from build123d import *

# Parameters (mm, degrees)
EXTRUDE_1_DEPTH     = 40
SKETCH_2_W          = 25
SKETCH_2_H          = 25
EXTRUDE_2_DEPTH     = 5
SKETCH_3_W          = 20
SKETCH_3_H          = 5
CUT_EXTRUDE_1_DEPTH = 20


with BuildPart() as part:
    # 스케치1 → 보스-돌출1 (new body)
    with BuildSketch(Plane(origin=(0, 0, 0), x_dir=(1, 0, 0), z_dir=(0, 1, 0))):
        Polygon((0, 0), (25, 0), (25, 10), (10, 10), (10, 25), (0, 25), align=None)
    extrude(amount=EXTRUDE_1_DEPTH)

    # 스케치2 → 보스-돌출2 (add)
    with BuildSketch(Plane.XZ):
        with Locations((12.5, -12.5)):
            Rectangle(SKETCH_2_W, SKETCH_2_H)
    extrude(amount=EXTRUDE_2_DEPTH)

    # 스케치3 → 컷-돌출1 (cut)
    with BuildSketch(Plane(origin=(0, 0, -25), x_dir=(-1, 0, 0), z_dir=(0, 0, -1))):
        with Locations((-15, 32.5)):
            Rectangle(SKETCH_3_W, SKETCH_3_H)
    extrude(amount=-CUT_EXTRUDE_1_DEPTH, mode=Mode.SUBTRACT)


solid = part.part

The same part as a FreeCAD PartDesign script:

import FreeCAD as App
import Part
import Sketcher
from FreeCAD import Vector
Q = App.Units.Quantity

doc = App.newDocument("Part")
params = doc.addObject("Spreadsheet::Sheet", "Params")
for row, (alias, value) in enumerate([
    ("sketch1_width", "25 mm"),
    ("sketch1_width2", "15 mm"),
    ("pad1_length", "40 mm"),
    ("sketch2_width", "25 mm"),
    ("pad2_length", "5 mm"),
    ("sketch3_width", "20 mm"),
    ("sketch3_height", "5 mm"),
    ("pocket1_length", "20 mm"),
], start=1):
    params.set(f"A{row}", alias)
    params.set(f"B{row}", "=" + value)
    params.setAlias(f"B{row}", alias)

body = doc.addObject("PartDesign::Body", "Body")

# Sketch on XZ plane
sketch1 = body.newObject("Sketcher::SketchObject", "Sketch")
sketch1.AttachmentSupport = (doc.getObject("XZ_Plane"), [""])
sketch1.MapMode = "FlatFace"
sketch1.addGeometry(Part.LineSegment(Vector(0, 0, 0), Vector(25, 0, 0)), False)
sketch1.addGeometry(Part.LineSegment(Vector(25, 0, 0), Vector(25, -10, 0)), False)
sketch1.addGeometry(Part.LineSegment(Vector(25, -10, 0), Vector(10, -10, 0)), False)
sketch1.addGeometry(Part.LineSegment(Vector(10, -10, 0), Vector(10, -25, 0)), False)
sketch1.addGeometry(Part.LineSegment(Vector(10, -25, 0), Vector(0, -25, 0)), False)
sketch1.addGeometry(Part.LineSegment(Vector(0, -25, 0), Vector(0, 0, 0)), False)
sketch1.addConstraint(Sketcher.Constraint("Coincident", 0, 2, 1, 1))
sketch1.addConstraint(Sketcher.Constraint("Coincident", 1, 2, 2, 1))
sketch1.addConstraint(Sketcher.Constraint("Coincident", 2, 2, 3, 1))
sketch1.addConstraint(Sketcher.Constraint("Coincident", 3, 2, 4, 1))
sketch1.addConstraint(Sketcher.Constraint("Coincident", 4, 2, 5, 1))
sketch1.addConstraint(Sketcher.Constraint("Coincident", 5, 2, 0, 1))
sketch1.addConstraint(Sketcher.Constraint("Horizontal", 0))
sketch1.addConstraint(Sketcher.Constraint("Vertical", 1))
sketch1.addConstraint(Sketcher.Constraint("Horizontal", 2))
sketch1.addConstraint(Sketcher.Constraint("Vertical", 3))
sketch1.addConstraint(Sketcher.Constraint("Horizontal", 4))
sketch1.addConstraint(Sketcher.Constraint("Vertical", 5))
sketch1.addConstraint(Sketcher.Constraint("Coincident", 5, 2, -1, 1))
sketch1.addConstraint(Sketcher.Constraint("Equal", 4, 1))
sketch1.addConstraint(Sketcher.Constraint("Equal", 2, 3))
sketch1.addConstraint(Sketcher.Constraint("DistanceX", 0, 1, 0, 2, Q("25 mm")))
sketch1.addConstraint(Sketcher.Constraint("DistanceX", 2, 2, 2, 1, Q("15 mm")))
sketch1.setExpression("Constraints[15]", "Params.sketch1_width")
sketch1.setExpression("Constraints[16]", "Params.sketch1_width2")
pad1 = body.newObject("PartDesign::Pad", "Pad")
pad1.Profile = sketch1
pad1.setExpression("Length", "Params.pad1_length")
pad1.Reversed = True

# Sketch on XZ plane
sketch2 = body.newObject("Sketcher::SketchObject", "Sketch001")
sketch2.AttachmentSupport = (doc.getObject("XZ_Plane"), [""])
sketch2.MapMode = "FlatFace"
sketch2.addGeometry(Part.LineSegment(Vector(0, 0, 0), Vector(0, -25, 0)), False)
sketch2.addGeometry(Part.LineSegment(Vector(0, -25, 0), Vector(25, -25, 0)), False)
sketch2.addGeometry(Part.LineSegment(Vector(25, -25, 0), Vector(25, 0, 0)), False)
sketch2.addGeometry(Part.LineSegment(Vector(25, 0, 0), Vector(0, 0, 0)), False)
sketch2.addConstraint(Sketcher.Constraint("Coincident", 0, 2, 1, 1))
sketch2.addConstraint(Sketcher.Constraint("Coincident", 1, 2, 2, 1))
sketch2.addConstraint(Sketcher.Constraint("Coincident", 2, 2, 3, 1))
sketch2.addConstraint(Sketcher.Constraint("Coincident", 3, 2, 0, 1))
sketch2.addConstraint(Sketcher.Constraint("Vertical", 0))
sketch2.addConstraint(Sketcher.Constraint("Horizontal", 1))
sketch2.addConstraint(Sketcher.Constraint("Vertical", 2))
sketch2.addConstraint(Sketcher.Constraint("Horizontal", 3))
sketch2.addConstraint(Sketcher.Constraint("Coincident", 3, 2, -1, 1))
sketch2.addConstraint(Sketcher.Constraint("Equal", 3, 0))
sketch2.addConstraint(Sketcher.Constraint("DistanceX", 1, 1, 1, 2, Q("25 mm")))
sketch2.setExpression("Constraints[10]", "Params.sketch2_width")
pad2 = body.newObject("PartDesign::Pad", "Pad001")
pad2.Profile = sketch2
pad2.setExpression("Length", "Params.pad2_length")

# Sketch on XY plane
sketch3 = body.newObject("Sketcher::SketchObject", "Sketch002")
sketch3.AttachmentSupport = (doc.getObject("XY_Plane"), [""])
sketch3.MapMode = "FlatFace"
sketch3.AttachmentOffset = App.Placement(Vector(0, 0, -25), App.Rotation())
sketch3.addGeometry(Part.LineSegment(Vector(25, 35, 0), Vector(25, 30, 0)), False)
sketch3.addGeometry(Part.LineSegment(Vector(25, 30, 0), Vector(5, 30, 0)), False)
sketch3.addGeometry(Part.LineSegment(Vector(5, 30, 0), Vector(5, 35, 0)), False)
sketch3.addGeometry(Part.LineSegment(Vector(5, 35, 0), Vector(25, 35, 0)), False)
sketch3.addConstraint(Sketcher.Constraint("Coincident", 0, 2, 1, 1))
sketch3.addConstraint(Sketcher.Constraint("Coincident", 1, 2, 2, 1))
sketch3.addConstraint(Sketcher.Constraint("Coincident", 2, 2, 3, 1))
sketch3.addConstraint(Sketcher.Constraint("Coincident", 3, 2, 0, 1))
sketch3.addConstraint(Sketcher.Constraint("Vertical", 0))
sketch3.addConstraint(Sketcher.Constraint("Horizontal", 1))
sketch3.addConstraint(Sketcher.Constraint("Vertical", 2))
sketch3.addConstraint(Sketcher.Constraint("Horizontal", 3))
sketch3.addConstraint(Sketcher.Constraint("DistanceX", 1, 2, 1, 1, Q("20 mm")))
sketch3.addConstraint(Sketcher.Constraint("DistanceY", 0, 2, 0, 1, Q("5 mm")))
sketch3.addConstraint(Sketcher.Constraint("DistanceX", -1, 1, 0, 2, Q("25 mm")))
sketch3.addConstraint(Sketcher.Constraint("DistanceY", -1, 1, 0, 2, Q("30 mm")))
sketch3.setExpression("Constraints[8]", "Params.sketch3_width")
sketch3.setExpression("Constraints[9]", "Params.sketch3_height")
pocket1 = body.newObject("PartDesign::Pocket", "Pocket")
pocket1.Profile = sketch3
pocket1.setExpression("Length", "Params.pocket1_length")
pocket1.Reversed = True

doc.recompute()
